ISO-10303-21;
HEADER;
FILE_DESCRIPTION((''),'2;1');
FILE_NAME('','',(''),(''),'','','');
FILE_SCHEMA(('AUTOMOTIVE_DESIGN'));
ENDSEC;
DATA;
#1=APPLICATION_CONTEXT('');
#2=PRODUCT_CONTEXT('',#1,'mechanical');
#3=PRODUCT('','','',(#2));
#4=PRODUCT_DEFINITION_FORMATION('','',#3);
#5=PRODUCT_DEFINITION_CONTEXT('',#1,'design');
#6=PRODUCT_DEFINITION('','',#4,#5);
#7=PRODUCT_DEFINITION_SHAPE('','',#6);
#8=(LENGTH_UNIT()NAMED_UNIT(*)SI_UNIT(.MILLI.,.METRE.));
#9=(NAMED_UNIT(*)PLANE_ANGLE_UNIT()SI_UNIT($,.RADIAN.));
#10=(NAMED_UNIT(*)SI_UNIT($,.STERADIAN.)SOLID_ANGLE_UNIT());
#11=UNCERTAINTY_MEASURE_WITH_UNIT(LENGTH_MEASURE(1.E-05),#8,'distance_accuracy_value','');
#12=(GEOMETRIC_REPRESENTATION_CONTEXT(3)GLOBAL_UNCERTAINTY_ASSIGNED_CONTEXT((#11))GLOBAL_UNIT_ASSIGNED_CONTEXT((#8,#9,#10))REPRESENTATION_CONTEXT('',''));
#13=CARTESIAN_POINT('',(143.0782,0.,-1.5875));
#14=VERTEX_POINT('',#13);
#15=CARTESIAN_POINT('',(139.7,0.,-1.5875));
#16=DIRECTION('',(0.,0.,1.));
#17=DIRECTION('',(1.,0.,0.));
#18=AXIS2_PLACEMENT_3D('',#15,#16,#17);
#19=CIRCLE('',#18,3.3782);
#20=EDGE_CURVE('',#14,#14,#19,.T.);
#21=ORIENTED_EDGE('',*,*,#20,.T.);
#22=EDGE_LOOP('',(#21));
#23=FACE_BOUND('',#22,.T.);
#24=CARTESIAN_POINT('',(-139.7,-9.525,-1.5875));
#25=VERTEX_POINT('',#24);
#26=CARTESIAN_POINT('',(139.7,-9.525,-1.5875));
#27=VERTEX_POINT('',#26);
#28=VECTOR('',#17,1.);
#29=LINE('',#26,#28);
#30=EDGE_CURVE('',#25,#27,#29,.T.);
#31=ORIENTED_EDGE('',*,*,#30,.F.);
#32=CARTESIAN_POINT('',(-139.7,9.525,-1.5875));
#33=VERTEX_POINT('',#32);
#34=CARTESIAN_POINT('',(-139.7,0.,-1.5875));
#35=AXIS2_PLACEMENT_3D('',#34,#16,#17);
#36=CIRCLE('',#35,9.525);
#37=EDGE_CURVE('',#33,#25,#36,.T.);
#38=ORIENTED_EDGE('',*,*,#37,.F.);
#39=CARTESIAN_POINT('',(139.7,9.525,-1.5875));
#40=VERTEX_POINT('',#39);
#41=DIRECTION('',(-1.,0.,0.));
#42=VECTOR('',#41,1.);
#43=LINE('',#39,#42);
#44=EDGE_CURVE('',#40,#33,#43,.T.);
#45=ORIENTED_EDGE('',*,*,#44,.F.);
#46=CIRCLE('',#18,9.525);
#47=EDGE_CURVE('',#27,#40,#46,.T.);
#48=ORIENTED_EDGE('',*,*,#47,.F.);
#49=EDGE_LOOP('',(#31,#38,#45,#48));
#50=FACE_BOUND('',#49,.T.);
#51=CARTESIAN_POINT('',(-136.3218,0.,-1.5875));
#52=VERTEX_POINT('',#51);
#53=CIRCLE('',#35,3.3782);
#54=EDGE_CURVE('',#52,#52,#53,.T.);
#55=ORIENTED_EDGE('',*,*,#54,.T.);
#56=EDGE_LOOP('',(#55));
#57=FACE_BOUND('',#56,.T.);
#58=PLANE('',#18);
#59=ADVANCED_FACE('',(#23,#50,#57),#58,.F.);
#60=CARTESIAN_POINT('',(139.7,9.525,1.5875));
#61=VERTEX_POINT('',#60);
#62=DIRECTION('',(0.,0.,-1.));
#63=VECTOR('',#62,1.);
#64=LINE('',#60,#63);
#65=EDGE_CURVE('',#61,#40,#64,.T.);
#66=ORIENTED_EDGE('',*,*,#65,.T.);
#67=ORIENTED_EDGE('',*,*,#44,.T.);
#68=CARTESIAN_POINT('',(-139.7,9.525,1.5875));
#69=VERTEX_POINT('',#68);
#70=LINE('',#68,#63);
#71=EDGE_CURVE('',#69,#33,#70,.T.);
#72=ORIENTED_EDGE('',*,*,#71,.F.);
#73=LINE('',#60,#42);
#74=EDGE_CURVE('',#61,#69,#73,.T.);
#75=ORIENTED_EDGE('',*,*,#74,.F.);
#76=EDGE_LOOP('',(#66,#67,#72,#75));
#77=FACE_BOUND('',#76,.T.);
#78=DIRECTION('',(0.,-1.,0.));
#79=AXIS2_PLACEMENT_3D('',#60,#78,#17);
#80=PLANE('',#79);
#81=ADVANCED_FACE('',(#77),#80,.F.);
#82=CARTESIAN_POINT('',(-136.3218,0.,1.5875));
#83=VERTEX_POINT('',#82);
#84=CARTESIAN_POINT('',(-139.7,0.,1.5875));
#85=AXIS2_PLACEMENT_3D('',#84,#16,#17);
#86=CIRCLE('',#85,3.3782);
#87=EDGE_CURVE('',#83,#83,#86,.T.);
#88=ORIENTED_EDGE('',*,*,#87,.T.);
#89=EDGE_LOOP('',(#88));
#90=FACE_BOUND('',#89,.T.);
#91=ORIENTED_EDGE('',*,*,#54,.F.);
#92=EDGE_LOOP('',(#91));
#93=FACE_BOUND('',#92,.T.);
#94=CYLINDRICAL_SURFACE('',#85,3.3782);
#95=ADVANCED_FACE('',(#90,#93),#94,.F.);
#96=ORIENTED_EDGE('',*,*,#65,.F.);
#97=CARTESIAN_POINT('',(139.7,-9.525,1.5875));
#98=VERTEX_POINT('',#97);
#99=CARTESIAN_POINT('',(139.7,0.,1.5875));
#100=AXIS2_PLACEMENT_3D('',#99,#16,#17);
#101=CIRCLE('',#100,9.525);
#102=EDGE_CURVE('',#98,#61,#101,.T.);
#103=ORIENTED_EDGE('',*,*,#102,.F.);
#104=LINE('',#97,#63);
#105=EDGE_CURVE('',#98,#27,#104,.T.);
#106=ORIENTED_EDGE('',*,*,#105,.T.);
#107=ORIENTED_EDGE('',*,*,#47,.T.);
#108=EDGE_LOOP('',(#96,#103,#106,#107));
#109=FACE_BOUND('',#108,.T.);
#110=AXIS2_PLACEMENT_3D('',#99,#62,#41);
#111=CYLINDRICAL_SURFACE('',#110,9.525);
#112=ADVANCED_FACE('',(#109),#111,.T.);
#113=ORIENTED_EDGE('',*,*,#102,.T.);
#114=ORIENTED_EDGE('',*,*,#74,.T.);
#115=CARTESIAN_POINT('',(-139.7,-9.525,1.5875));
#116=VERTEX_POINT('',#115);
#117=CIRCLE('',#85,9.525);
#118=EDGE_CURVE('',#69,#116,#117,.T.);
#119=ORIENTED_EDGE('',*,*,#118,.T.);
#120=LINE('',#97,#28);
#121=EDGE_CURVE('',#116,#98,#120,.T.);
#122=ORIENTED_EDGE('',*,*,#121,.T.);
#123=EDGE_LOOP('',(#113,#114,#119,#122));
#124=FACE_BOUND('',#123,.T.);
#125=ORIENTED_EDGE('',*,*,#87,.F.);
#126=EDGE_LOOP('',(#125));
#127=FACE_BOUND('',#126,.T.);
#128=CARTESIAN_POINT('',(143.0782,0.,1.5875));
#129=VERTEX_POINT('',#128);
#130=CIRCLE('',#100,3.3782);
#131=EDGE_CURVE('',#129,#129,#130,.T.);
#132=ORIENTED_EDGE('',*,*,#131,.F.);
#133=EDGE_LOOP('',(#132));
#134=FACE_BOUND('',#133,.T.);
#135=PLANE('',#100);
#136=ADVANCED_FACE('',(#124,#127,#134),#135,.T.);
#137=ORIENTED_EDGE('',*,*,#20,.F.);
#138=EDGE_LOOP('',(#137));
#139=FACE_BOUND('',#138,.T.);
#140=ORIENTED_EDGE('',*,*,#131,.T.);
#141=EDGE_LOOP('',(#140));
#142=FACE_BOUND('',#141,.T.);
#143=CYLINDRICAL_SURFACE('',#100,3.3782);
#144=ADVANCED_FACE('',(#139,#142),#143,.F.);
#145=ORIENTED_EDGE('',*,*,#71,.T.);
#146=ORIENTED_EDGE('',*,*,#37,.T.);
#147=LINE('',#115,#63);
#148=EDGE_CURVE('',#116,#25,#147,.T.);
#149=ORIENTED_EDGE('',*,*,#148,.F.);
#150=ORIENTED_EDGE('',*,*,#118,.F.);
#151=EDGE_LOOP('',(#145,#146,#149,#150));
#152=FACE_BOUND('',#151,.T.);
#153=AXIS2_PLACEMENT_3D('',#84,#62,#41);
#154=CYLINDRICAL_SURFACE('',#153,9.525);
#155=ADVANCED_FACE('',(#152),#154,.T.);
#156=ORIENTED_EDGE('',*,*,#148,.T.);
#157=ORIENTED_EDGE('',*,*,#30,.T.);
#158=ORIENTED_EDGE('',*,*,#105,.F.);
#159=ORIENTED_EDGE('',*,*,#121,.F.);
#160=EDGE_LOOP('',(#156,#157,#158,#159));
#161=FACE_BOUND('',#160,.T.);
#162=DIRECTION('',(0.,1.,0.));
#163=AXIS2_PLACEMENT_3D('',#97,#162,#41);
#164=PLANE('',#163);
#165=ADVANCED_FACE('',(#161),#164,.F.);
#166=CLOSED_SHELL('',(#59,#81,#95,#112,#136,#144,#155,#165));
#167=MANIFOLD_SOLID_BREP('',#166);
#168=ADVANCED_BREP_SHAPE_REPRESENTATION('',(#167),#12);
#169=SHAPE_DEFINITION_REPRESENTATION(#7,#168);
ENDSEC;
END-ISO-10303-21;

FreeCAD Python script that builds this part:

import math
import FreeCAD as App
import Part
import Sketcher
Q = App.Units.Quantity

doc = App.newDocument("Part")
body = doc.addObject("PartDesign::Body", "Body")

# Sketch on XY plane
sketch1 = body.newObject("Sketcher::SketchObject", "Sketch")
sketch1.AttachmentSupport = (doc.getObject("XY_Plane"), [""])
sketch1.MapMode = "FlatFace"
sketch1.addGeometry([
    Part.LineSegment(App.Vector(-140, -10, 0), App.Vector(140, -10, 0)),
    Part.ArcOfCircle(Part.Circle(App.Vector(140, 0, 0), App.Vector(0, 0, 1), 10), math.radians(-90), math.radians(90)),
    Part.LineSegment(App.Vector(140, 10, 0), App.Vector(-140, 10, 0)),
    Part.ArcOfCircle(Part.Circle(App.Vector(-140, 0, 0), App.Vector(0, 0, 1), 10), math.radians(90), math.radians(270)),
], False)
sketch1.addConstraint([
    Sketcher.Constraint("Tangent", 0, 2, 1, 1),
    Sketcher.Constraint("Tangent", 1, 2, 2, 1),
    Sketcher.Constraint("Tangent", 2, 2, 3, 1),
    Sketcher.Constraint("Tangent", 3, 2, 0, 1),
    Sketcher.Constraint("Horizontal", 0),
    Sketcher.Constraint("Horizontal", 2),
    Sketcher.Constraint("Symmetric", 1, 3, 3, 3, -1, 1),
    Sketcher.Constraint("DistanceX", 0, 1, 0, 2, Q("11 in")),
    Sketcher.Constraint("Radius", 1, Q("0.375 in")),
])
pad1 = body.newObject("PartDesign::Pad", "Pad")
pad1.Profile = sketch1
pad1.Length = Q("0.125 in")
pad1.Midplane = True

# Sketch on XY plane
sketch2 = body.newObject("Sketcher::SketchObject", "Sketch001")
sketch2.AttachmentSupport = (doc.getObject("XY_Plane"), [""])
sketch2.MapMode = "FlatFace"
sketch2.AttachmentOffset = App.Placement(App.Vector(0, 0, 0.0625 * 25.4), App.Rotation())
sketch2.addGeometry([
    Part.Circle(App.Vector(-139.7, 0, 0), App.Vector(0, 0, 1), 3.4),
    Part.Circle(App.Vector(139.7, 0, 0), App.Vector(0, 0, 1), 3.4),
], False)
sketch2.addConstraint([
    Sketcher.Constraint("Equal", 0, 1),
    Sketcher.Constraint("Symmetric", 0, 3, 1, 3, -1, 1),
    Sketcher.Constraint("PointOnObject", 0, 3, -1),
    Sketcher.Constraint("Diameter", 0, Q("0.266 in")),
    Sketcher.Constraint("DistanceX", 0, 3, 1, 3, Q("11 in")),
])
doc.recompute()
hole = body.newObject("PartDesign::Hole", "Hole")
hole.Profile = sketch2
hole.ThreadType = "None"
hole.Diameter = Q("0.266 in")
hole.DepthType = "ThroughAll"

doc.recompute()
